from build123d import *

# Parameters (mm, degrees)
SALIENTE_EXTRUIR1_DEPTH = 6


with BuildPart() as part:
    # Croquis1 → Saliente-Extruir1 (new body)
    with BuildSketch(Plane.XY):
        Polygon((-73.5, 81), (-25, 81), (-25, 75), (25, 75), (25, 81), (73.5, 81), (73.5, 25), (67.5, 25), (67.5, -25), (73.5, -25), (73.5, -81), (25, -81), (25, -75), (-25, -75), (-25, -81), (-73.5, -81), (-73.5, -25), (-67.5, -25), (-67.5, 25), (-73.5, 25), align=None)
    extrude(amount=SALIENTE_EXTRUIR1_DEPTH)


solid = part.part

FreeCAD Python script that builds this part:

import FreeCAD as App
import Part
import Sketcher
from FreeCAD import Vector
Q = App.Units.Quantity

doc = App.newDocument("Part")
params = doc.addObject("Spreadsheet::Sheet", "Params")
for row, (alias, value) in enumerate([
    ("sketch1_width", "6 mm"),
    ("sketch1_width2", "50 mm"),
    ("sketch1_height", "56 mm"),
    ("sketch1_width3", "48.5 mm"),
    ("pad1_length", "6 mm"),
], start=1):
    params.set(f"A{row}", alias)
    params.set(f"B{row}", "=" + value)
    params.setAlias(f"B{row}", alias)

body = doc.addObject("PartDesign::Body", "Body")

sketch1 = body.newObject("Sketcher::SketchObject", "Sketch")
sketch1.AttachmentSupport = (doc.getObject("XY_Plane"), [""])
sketch1.MapMode = "FlatFace"
sketch1.addGeometry(Part.LineSegment(Vector(-25, 81, 0), Vector(-73.5, 81, 0)), False)
sketch1.addGeometry(Part.LineSegment(Vector(-73.5, 81, 0), Vector(-73.5, 25, 0)), False)
sketch1.addGeometry(Part.LineSegment(Vector(-73.5, 25, 0), Vector(-67.5, 25, 0)), False)
sketch1.addGeometry(Part.LineSegment(Vector(-67.5, 25, 0), Vector(-67.5, -25, 0)), False)
sketch1.addGeometry(Part.LineSegment(Vector(-67.5, -25, 0), Vector(-73.5, -25, 0)), False)
sketch1.addGeometry(Part.LineSegment(Vector(-73.5, -25, 0), Vector(-73.5, -81, 0)), False)
sketch1.addGeometry(Part.LineSegment(Vector(-73.5, -81, 0), Vector(-25, -81, 0)), False)
sketch1.addGeometry(Part.LineSegment(Vector(-25, -81, 0), Vector(-25, -75, 0)), False)
sketch1.addGeometry(Part.LineSegment(Vector(-25, -75, 0), Vector(25, -75, 0)), False)
sketch1.addGeometry(Part.LineSegment(Vector(25, -75, 0), Vector(25, -81, 0)), False)
sketch1.addGeometry(Part.LineSegment(Vector(25, -81, 0), Vector(73.5, -81, 0)), False)
sketch1.addGeometry(Part.LineSegment(Vector(73.5, -81, 0), Vector(73.5, -25, 0)), False)
sketch1.addGeometry(Part.LineSegment(Vector(73.5, -25, 0), Vector(67.5, -25, 0)), False)
sketch1.addGeometry(Part.LineSegment(Vector(67.5, -25, 0), Vector(67.5, 25, 0)), False)
sketch1.addGeometry(Part.LineSegment(Vector(67.5, 25, 0), Vector(73.5, 25, 0)), False)
sketch1.addGeometry(Part.LineSegment(Vector(73.5, 25, 0), Vector(73.5, 81, 0)), False)
sketch1.addGeometry(Part.LineSegment(Vector(73.5, 81, 0), Vector(25, 81, 0)), False)
sketch1.addGeometry(Part.LineSegment(Vector(25, 81, 0), Vector(25, 75, 0)), False)
sketch1.addGeometry(Part.LineSegment(Vector(25, 75, 0), Vector(-25, 75, 0)), False)
sketch1.addGeometry(Part.LineSegment(Vector(-25, 75, 0), Vector(-25, 81, 0)), False)
sketch1.addConstraint(Sketcher.Constraint("Coincident", 0, 2, 1, 1))
sketch1.addConstraint(Sketcher.Constraint("Coincident", 1, 2, 2, 1))
sketch1.addConstraint(Sketcher.Constraint("Coincident", 2, 2, 3, 1))
sketch1.addConstraint(Sketcher.Constraint("Coincident", 3, 2, 4, 1))
sketch1.addConstraint(Sketcher.Constraint("Coincident", 4, 2, 5, 1))
sketch1.addConstraint(Sketcher.Constraint("Coincident", 5, 2, 6, 1))
sketch1.addConstraint(Sketcher.Constraint("Coincident", 6, 2, 7, 1))
sketch1.addConstraint(Sketcher.Constraint("Coincident", 7, 2, 8, 1))
sketch1.addConstraint(Sketcher.Constraint("Coincident", 8, 2, 9, 1))
sketch1.addConstraint(Sketcher.Constraint("Coincident", 9, 2, 10, 1))
sketch1.addConstraint(Sketcher.Constraint("Coincident", 10, 2, 11, 1))
sketch1.addConstraint(Sketcher.Constraint("Coincident", 11, 2, 12, 1))
sketch1.addConstraint(Sketcher.Constraint("Coincident", 12, 2, 13, 1))
sketch1.addConstraint(Sketcher.Constraint("Coincident", 13, 2, 14, 1))
sketch1.addConstraint(Sketcher.Constraint("Coincident", 14, 2, 15, 1))
sketch1.addConstraint(Sketcher.Constraint("Coincident", 15, 2, 16, 1))
sketch1.addConstraint(Sketcher.Constraint("Coincident", 16, 2, 17, 1))
sketch1.addConstraint(Sketcher.Constraint("Coincident", 17, 2, 18, 1))
sketch1.addConstraint(Sketcher.Constraint("Coincident", 18, 2, 19, 1))
sketch1.addConstraint(Sketcher.Constraint("Coincident", 19, 2, 0, 1))
sketch1.addConstraint(Sketcher.Constraint("Horizontal", 0))
sketch1.addConstraint(Sketcher.Constraint("Vertical", 1))
sketch1.addConstraint(Sketcher.Constraint("Horizontal", 2))
sketch1.addConstraint(Sketcher.Constraint("Vertical", 3))
sketch1.addConstraint(Sketcher.Constraint("Horizontal", 4))
sketch1.addConstraint(Sketcher.Constraint("Vertical", 5))
sketch1.addConstraint(Sketcher.Constraint("Horizontal", 6))
sketch1.addConstraint(Sketcher.Constraint("Vertical", 7))
sketch1.addConstraint(Sketcher.Constraint("Horizontal", 8))
sketch1.addConstraint(Sketcher.Constraint("Vertical", 9))
sketch1.addConstraint(Sketcher.Constraint("Horizontal", 10))
sketch1.addConstraint(Sketcher.Constraint("Vertical", 11))
sketch1.addConstraint(Sketcher.Constraint("Horizontal", 12))
sketch1.addConstraint(Sketcher.Constraint("Vertical", 13))
sketch1.addConstraint(Sketcher.Constraint("Horizontal", 14))
sketch1.addConstraint(Sketcher.Constraint("Vertical", 15))
sketch1.addConstraint(Sketcher.Constraint("Horizontal", 16))
sketch1.addConstraint(Sketcher.Constraint("Vertical", 17))
sketch1.addConstraint(Sketcher.Constraint("Horizontal", 18))
sketch1.addConstraint(Sketcher.Constraint("Vertical", 19))
sketch1.addConstraint(Sketcher.Constraint("Symmetric", 0, 2, 10, 2, -1, 1))
sketch1.addConstraint(Sketcher.Constraint("Symmetric", 2, 2, 12, 2, -1, 1))
sketch1.addConstraint(Sketcher.Constraint("Symmetric", 4, 2, 14, 2, -1, 1))
sketch1.addConstraint(Sketcher.Constraint("Symmetric", 6, 2, 16, 2, -1, 1))
sketch1.addConstraint(Sketcher.Constraint("Symmetric", 8, 2, 18, 2, -1, 1))
sketch1.addConstraint(Sketcher.Constraint("Symmetric", 6, 2, 9, 2, -2))
sketch1.addConstraint(Sketcher.Constraint("Symmetric", 4, 2, 11, 2, -2))
sketch1.addConstraint(Sketcher.Constraint("Equal", 18, 3))
sketch1.addConstraint(Sketcher.Constraint("Equal", 14, 7))
sketch1.addConstraint(Sketcher.Constraint("DistanceX", 2, 1, 2, 2, Q("6 mm")))
sketch1.addConstraint(Sketcher.Constraint("DistanceX", 8, 1, 8, 2, Q("50 mm")))
sketch1.addConstraint(Sketcher.Constraint("DistanceY", 1, 2, 1, 1, Q("56 mm")))
sketch1.addConstraint(Sketcher.Constraint("DistanceX", 0, 2, 0, 1, Q("48.5 mm")))
sketch1.setExpression("Constraints[49]", "Params.sketch1_width")
sketch1.setExpression("Constraints[50]", "Params.sketch1_width2")
sketch1.setExpression("Constraints[51]", "Params.sketch1_height")
sketch1.setExpression("Constraints[52]", "Params.sketch1_width3")
pad1 = body.newObject("PartDesign::Pad", "Pad")
pad1.Profile = sketch1
pad1.setExpression("Length", "Params.pad1_length")

doc.recompute()
